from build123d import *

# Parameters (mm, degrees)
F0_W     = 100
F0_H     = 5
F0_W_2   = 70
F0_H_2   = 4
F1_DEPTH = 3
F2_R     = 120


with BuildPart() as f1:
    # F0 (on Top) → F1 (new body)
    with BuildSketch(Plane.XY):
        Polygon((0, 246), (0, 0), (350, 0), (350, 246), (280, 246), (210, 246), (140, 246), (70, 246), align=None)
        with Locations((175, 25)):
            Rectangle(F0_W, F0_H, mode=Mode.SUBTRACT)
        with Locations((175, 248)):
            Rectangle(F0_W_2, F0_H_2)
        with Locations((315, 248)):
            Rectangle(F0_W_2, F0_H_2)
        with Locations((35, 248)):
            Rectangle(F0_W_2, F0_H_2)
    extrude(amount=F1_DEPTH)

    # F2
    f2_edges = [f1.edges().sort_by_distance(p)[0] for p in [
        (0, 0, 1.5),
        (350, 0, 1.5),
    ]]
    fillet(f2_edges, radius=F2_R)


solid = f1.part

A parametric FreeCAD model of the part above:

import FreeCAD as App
import Part
import Sketcher

V = App.Vector
Q = App.Units.Quantity


def edges_at(feature, points):
    """Names of the edges that pass closest to the given points."""
    edges = feature.Shape.Edges
    near = lambda p: min(range(len(edges)), key=lambda i: edges[i].distToShape(Part.Vertex(*p))[0])
    return sorted({f"Edge{near(p) + 1}" for p in points})

doc = App.newDocument("Part")
body = doc.addObject("PartDesign::Body", "Body")

sketch1 = body.newObject("Sketcher::SketchObject", "Sketch")
sketch1.AttachmentSupport = (doc.getObject("XY_Plane"), [""])
sketch1.MapMode = "FlatFace"
sketch1.addGeometry([
    Part.LineSegment(V(0, 0, 0), V(350, 0, 0)),
    Part.LineSegment(V(350, 0, 0), V(350, 250, 0)),
    Part.LineSegment(V(350, 250, 0), V(280, 250, 0)),
    Part.LineSegment(V(280, 250, 0), V(280, 246, 0)),
    Part.LineSegment(V(280, 246, 0), V(210, 246, 0)),
    Part.LineSegment(V(210, 246, 0), V(210, 250, 0)),
    Part.LineSegment(V(210, 250, 0), V(140, 250, 0)),
    Part.LineSegment(V(140, 250, 0), V(140, 246, 0)),
    Part.LineSegment(V(140, 246, 0), V(70, 246, 0)),
    Part.LineSegment(V(70, 246, 0), V(70, 250, 0)),
    Part.LineSegment(V(70, 250, 0), V(0, 250, 0)),
    Part.LineSegment(V(0, 250, 0), V(0, 0, 0)),
    Part.LineSegment(V(225, 22.5, 0), V(125, 22.5, 0)),
    Part.LineSegment(V(125, 22.5, 0), V(125, 27.5, 0)),
    Part.LineSegment(V(125, 27.5, 0), V(225, 27.5, 0)),
    Part.LineSegment(V(225, 27.5, 0), V(225, 22.5, 0)),
], False)
sketch1.addConstraint([
    Sketcher.Constraint("Coincident", 0, 2, 1, 1),
    Sketcher.Constraint("Coincident", 1, 2, 2, 1),
    Sketcher.Constraint("Coincident", 2, 2, 3, 1),
    Sketcher.Constraint("Coincident", 3, 2, 4, 1),
    Sketcher.Constraint("Coincident", 4, 2, 5, 1),
    Sketcher.Constraint("Coincident", 5, 2, 6, 1),
    Sketcher.Constraint("Coincident", 6, 2, 7, 1),
    Sketcher.Constraint("Coincident", 7, 2, 8, 1),
    Sketcher.Constraint("Coincident", 8, 2, 9, 1),
    Sketcher.Constraint("Coincident", 9, 2, 10, 1),
    Sketcher.Constraint("Coincident", 10, 2, 11, 1),
    Sketcher.Constraint("Coincident", 11, 2, 0, 1),
    Sketcher.Constraint("Coincident", 12, 2, 13, 1),
    Sketcher.Constraint("Coincident", 13, 2, 14, 1),
    Sketcher.Constraint("Coincident", 14, 2, 15, 1),
    Sketcher.Constraint("Coincident", 15, 2, 12, 1),
    Sketcher.Constraint("Horizontal", 0),
    Sketcher.Constraint("Vertical", 1),
    Sketcher.Constraint("Horizontal", 2),
    Sketcher.Constraint("Vertical", 3),
    Sketcher.Constraint("Horizontal", 4),
    Sketcher.Constraint("Vertical", 5),
    Sketcher.Constraint("Horizontal", 6),
    Sketcher.Constraint("Vertical", 7),
    Sketcher.Constraint("Horizontal", 8),
    Sketcher.Constraint("Vertical", 9),
    Sketcher.Constraint("Horizontal", 10),
    Sketcher.Constraint("Vertical", 11),
    Sketcher.Constraint("Horizontal", 12),
    Sketcher.Constraint("Vertical", 13),
    Sketcher.Constraint("Horizontal", 14),
    Sketcher.Constraint("Vertical", 15),
    Sketcher.Constraint("Coincident", 11, 2, -1, 1),
    Sketcher.Constraint("Horizontal", 2, 2, 5, 2),
    Sketcher.Constraint("Horizontal", 4, 2, 7, 2),
    Sketcher.Constraint("Horizontal", 6, 2, 9, 2),
    Sketcher.Constraint("Equal", 2, 4),
    Sketcher.Constraint("Equal", 4, 6),
    Sketcher.Constraint("Equal", 6, 8),
    Sketcher.Constraint("Equal", 8, 10),
    Sketcher.Constraint("DistanceX", 0, 1, 0, 2, Q("350 mm")),
    Sketcher.Constraint("DistanceX", 12, 2, 12, 1, Q("100 mm")),
    Sketcher.Constraint("DistanceY", 1, 1, 1, 2, Q("250 mm")),
    Sketcher.Constraint("DistanceY", 3, 2, 3, 1, Q("4 mm")),
    Sketcher.Constraint("DistanceY", 13, 1, 13, 2, Q("5 mm")),
    Sketcher.Constraint("DistanceX", -1, 1, 12, 2, Q("125 mm")),
    Sketcher.Constraint("DistanceY", -1, 1, 12, 2, Q("22.5 mm")),
])
pad1 = body.newObject("PartDesign::Pad", "Pad")
pad1.Profile = sketch1
pad1.Length = 3
doc.recompute()

fillet = body.newObject("PartDesign::Fillet", "Fillet")
fillet.Base = (pad1, edges_at(pad1, [(0, 0, 1.5), (350, 0, 1.5)]))
fillet.Radius = 120

doc.recompute()
